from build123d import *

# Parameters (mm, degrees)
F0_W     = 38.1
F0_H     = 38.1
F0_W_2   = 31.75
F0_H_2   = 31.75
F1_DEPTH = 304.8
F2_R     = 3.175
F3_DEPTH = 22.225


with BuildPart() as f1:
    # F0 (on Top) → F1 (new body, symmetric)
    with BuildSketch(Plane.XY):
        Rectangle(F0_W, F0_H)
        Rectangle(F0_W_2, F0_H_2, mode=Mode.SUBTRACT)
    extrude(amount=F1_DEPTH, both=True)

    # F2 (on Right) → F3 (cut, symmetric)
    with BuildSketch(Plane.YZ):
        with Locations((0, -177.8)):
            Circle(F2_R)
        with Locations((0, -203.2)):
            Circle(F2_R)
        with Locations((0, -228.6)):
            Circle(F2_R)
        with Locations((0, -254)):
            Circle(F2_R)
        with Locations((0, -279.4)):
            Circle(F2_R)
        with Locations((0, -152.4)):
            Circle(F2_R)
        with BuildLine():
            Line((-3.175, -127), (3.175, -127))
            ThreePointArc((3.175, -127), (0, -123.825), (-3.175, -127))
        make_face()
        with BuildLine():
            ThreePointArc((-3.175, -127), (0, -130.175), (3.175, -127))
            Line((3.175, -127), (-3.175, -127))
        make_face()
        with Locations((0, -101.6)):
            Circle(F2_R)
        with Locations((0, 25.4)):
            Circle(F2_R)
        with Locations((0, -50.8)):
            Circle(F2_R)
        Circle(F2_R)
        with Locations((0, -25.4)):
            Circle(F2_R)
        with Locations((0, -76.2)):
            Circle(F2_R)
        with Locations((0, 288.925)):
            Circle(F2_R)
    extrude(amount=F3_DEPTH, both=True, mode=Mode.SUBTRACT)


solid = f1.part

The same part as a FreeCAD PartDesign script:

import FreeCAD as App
import Part
import Sketcher

V = App.Vector
Q = App.Units.Quantity


def add_polygon(sketch, points):
    """Adds a closed chain of lines whose ends are joined by coincident constraints."""
    first, n = sketch.GeometryCount, len(points)
    for a, b in zip(points, points[1:] + points[:1]):
        sketch.addGeometry(Part.LineSegment(App.Vector(*a, 0), App.Vector(*b, 0)), False)
    for i in range(n):
        sketch.addConstraint(Sketcher.Constraint("Coincident", first + i, 2, first + (i + 1) % n, 1))

doc = App.newDocument("Part")
body = doc.addObject("PartDesign::Body", "Body")

# Sketch on XY plane
sketch1 = body.newObject("Sketcher::SketchObject", "Sketch")
sketch1.AttachmentSupport = (doc.getObject("XY_Plane"), [""])
sketch1.MapMode = "FlatFace"
add_polygon(sketch1, [(-19, 19), (-19, -19), (19, -19), (19, 19)])  # lines 0-3
add_polygon(sketch1, [(16, -16), (-16, -16), (-16, 16), (16, 16)])  # lines 4-7
sketch1.addConstraint([
    Sketcher.Constraint("Vertical", 0),
    Sketcher.Constraint("Horizontal", 1),
    Sketcher.Constraint("Vertical", 2),
    Sketcher.Constraint("Horizontal", 3),
    Sketcher.Constraint("Horizontal", 4),
    Sketcher.Constraint("Vertical", 5),
    Sketcher.Constraint("Horizontal", 6),
    Sketcher.Constraint("Vertical", 7),
    Sketcher.Constraint("Symmetric", 0, 2, 2, 2, -1, 1),
    Sketcher.Constraint("Symmetric", 4, 2, 6, 2, -1, 1),
    Sketcher.Constraint("Equal", 3, 0),
    Sketcher.Constraint("Equal", 6, 5),
    Sketcher.Constraint("DistanceX", 1, 1, 1, 2, Q("1.5 in")),
    Sketcher.Constraint("DistanceX", 4, 2, 4, 1, Q("1.25 in")),
])
pad1 = body.newObject("PartDesign::Pad", "Pad")
pad1.Profile = sketch1
pad1.Length = Q("24 in")
pad1.Midplane = True

# Sketch on YZ plane
sketch2 = body.newObject("Sketcher::SketchObject", "Sketch001")
sketch2.AttachmentSupport = (doc.getObject("YZ_Plane"), [""])
sketch2.MapMode = "FlatFace"
sketch2.addGeometry([
    Part.Circle(V(0, -177.8, 0), V(0, 0, 1), 3.2),  # 0
    Part.Circle(V(0, -203.2, 0), V(0, 0, 1), 3.2),  # 1
    Part.Circle(V(0, -228.6, 0), V(0, 0, 1), 3.2),  # 2
    Part.Circle(V(0, -254, 0), V(0, 0, 1), 3.2),  # 3
    Part.Circle(V(0, -279.4, 0), V(0, 0, 1), 3.2),  # 4
    Part.Circle(V(0, -152.4, 0), V(0, 0, 1), 3.2),  # 5
    Part.Circle(V(0, -127, 0), V(0, 0, 1), 3.2),  # 6
    Part.Circle(V(0, -101.6, 0), V(0, 0, 1), 3.2),  # 7
    Part.Circle(V(0, 25.4, 0), V(0, 0, 1), 3.2),  # 8
    Part.Circle(V(0, -50.8, 0), V(0, 0, 1), 3.2),  # 9
    Part.Circle(V(0, 0, 0), V(0, 0, 1), 3.2),  # 10
    Part.Circle(V(0, -25.4, 0), V(0, 0, 1), 3.2),  # 11
    Part.Circle(V(0, -76.2, 0), V(0, 0, 1), 3.2),  # 12
    Part.Circle(V(0, 288.9, 0), V(0, 0, 1), 3.2),  # 13
], False)
sketch2.addConstraint([
    Sketcher.Constraint("Coincident", 10, 3, -1, 1),
    Sketcher.Constraint("Equal", 0, 1),
    Sketcher.Constraint("Equal", 1, 2),
    Sketcher.Constraint("Equal", 2, 3),
    Sketcher.Constraint("Equal", 3, 4),
    Sketcher.Constraint("Equal", 4, 5),
    Sketcher.Constraint("Equal", 5, 6),
    Sketcher.Constraint("Equal", 6, 7),
    Sketcher.Constraint("Equal", 7, 8),
    Sketcher.Constraint("Equal", 8, 9),
    Sketcher.Constraint("Equal", 9, 10),
    Sketcher.Constraint("Equal", 10, 11),
    Sketcher.Constraint("Equal", 11, 12),
    Sketcher.Constraint("Equal", 12, 13),
    Sketcher.Constraint("Symmetric", 8, 3, 11, 3, -1, 1),
    Sketcher.Constraint("PointOnObject", 0, 3, -2),
    Sketcher.Constraint("PointOnObject", 1, 3, -2),
    Sketcher.Constraint("PointOnObject", 2, 3, -2),
    Sketcher.Constraint("PointOnObject", 3, 3, -2),
    Sketcher.Constraint("PointOnObject", 4, 3, -2),
    Sketcher.Constraint("PointOnObject", 5, 3, -2),
    Sketcher.Constraint("PointOnObject", 6, 3, -2),
    Sketcher.Constraint("PointOnObject", 7, 3, -2),
    Sketcher.Constraint("PointOnObject", 8, 3, -2),
    Sketcher.Constraint("PointOnObject", 9, 3, -2),
    Sketcher.Constraint("PointOnObject", 12, 3, -2),
    Sketcher.Constraint("PointOnObject", 13, 3, -2),
    Sketcher.Constraint("Diameter", 0, Q("0.25 in")),
    Sketcher.Constraint("DistanceY", 0, 3, -1, 1, Q("7 in")),
    Sketcher.Constraint("DistanceY", 1, 3, -1, 1, Q("8 in")),
    Sketcher.Constraint("DistanceY", 2, 3, -1, 1, Q("9 in")),
    Sketcher.Constraint("DistanceY", 3, 3, -1, 1, Q("10 in")),
    Sketcher.Constraint("DistanceY", 4, 3, -1, 1, Q("11 in")),
    Sketcher.Constraint("DistanceY", 5, 3, -1, 1, Q("6 in")),
    Sketcher.Constraint("DistanceY", 6, 3, -1, 1, Q("5 in")),
    Sketcher.Constraint("DistanceY", 7, 3, -1, 1, Q("4 in")),
    Sketcher.Constraint("DistanceY", -1, 1, 8, 3, Q("1 in")),
    Sketcher.Constraint("DistanceY", 9, 3, -1, 1, Q("2 in")),
    Sketcher.Constraint("DistanceY", 12, 3, -1, 1, Q("3 in")),
    Sketcher.Constraint("DistanceY", -1, 1, 13, 3, Q("11.375 in")),
])
pocket1 = body.newObject("PartDesign::Pocket", "Pocket")
pocket1.Profile = sketch2
pocket1.Length = Q("1.75 in")
pocket1.Midplane = True

doc.recompute()
